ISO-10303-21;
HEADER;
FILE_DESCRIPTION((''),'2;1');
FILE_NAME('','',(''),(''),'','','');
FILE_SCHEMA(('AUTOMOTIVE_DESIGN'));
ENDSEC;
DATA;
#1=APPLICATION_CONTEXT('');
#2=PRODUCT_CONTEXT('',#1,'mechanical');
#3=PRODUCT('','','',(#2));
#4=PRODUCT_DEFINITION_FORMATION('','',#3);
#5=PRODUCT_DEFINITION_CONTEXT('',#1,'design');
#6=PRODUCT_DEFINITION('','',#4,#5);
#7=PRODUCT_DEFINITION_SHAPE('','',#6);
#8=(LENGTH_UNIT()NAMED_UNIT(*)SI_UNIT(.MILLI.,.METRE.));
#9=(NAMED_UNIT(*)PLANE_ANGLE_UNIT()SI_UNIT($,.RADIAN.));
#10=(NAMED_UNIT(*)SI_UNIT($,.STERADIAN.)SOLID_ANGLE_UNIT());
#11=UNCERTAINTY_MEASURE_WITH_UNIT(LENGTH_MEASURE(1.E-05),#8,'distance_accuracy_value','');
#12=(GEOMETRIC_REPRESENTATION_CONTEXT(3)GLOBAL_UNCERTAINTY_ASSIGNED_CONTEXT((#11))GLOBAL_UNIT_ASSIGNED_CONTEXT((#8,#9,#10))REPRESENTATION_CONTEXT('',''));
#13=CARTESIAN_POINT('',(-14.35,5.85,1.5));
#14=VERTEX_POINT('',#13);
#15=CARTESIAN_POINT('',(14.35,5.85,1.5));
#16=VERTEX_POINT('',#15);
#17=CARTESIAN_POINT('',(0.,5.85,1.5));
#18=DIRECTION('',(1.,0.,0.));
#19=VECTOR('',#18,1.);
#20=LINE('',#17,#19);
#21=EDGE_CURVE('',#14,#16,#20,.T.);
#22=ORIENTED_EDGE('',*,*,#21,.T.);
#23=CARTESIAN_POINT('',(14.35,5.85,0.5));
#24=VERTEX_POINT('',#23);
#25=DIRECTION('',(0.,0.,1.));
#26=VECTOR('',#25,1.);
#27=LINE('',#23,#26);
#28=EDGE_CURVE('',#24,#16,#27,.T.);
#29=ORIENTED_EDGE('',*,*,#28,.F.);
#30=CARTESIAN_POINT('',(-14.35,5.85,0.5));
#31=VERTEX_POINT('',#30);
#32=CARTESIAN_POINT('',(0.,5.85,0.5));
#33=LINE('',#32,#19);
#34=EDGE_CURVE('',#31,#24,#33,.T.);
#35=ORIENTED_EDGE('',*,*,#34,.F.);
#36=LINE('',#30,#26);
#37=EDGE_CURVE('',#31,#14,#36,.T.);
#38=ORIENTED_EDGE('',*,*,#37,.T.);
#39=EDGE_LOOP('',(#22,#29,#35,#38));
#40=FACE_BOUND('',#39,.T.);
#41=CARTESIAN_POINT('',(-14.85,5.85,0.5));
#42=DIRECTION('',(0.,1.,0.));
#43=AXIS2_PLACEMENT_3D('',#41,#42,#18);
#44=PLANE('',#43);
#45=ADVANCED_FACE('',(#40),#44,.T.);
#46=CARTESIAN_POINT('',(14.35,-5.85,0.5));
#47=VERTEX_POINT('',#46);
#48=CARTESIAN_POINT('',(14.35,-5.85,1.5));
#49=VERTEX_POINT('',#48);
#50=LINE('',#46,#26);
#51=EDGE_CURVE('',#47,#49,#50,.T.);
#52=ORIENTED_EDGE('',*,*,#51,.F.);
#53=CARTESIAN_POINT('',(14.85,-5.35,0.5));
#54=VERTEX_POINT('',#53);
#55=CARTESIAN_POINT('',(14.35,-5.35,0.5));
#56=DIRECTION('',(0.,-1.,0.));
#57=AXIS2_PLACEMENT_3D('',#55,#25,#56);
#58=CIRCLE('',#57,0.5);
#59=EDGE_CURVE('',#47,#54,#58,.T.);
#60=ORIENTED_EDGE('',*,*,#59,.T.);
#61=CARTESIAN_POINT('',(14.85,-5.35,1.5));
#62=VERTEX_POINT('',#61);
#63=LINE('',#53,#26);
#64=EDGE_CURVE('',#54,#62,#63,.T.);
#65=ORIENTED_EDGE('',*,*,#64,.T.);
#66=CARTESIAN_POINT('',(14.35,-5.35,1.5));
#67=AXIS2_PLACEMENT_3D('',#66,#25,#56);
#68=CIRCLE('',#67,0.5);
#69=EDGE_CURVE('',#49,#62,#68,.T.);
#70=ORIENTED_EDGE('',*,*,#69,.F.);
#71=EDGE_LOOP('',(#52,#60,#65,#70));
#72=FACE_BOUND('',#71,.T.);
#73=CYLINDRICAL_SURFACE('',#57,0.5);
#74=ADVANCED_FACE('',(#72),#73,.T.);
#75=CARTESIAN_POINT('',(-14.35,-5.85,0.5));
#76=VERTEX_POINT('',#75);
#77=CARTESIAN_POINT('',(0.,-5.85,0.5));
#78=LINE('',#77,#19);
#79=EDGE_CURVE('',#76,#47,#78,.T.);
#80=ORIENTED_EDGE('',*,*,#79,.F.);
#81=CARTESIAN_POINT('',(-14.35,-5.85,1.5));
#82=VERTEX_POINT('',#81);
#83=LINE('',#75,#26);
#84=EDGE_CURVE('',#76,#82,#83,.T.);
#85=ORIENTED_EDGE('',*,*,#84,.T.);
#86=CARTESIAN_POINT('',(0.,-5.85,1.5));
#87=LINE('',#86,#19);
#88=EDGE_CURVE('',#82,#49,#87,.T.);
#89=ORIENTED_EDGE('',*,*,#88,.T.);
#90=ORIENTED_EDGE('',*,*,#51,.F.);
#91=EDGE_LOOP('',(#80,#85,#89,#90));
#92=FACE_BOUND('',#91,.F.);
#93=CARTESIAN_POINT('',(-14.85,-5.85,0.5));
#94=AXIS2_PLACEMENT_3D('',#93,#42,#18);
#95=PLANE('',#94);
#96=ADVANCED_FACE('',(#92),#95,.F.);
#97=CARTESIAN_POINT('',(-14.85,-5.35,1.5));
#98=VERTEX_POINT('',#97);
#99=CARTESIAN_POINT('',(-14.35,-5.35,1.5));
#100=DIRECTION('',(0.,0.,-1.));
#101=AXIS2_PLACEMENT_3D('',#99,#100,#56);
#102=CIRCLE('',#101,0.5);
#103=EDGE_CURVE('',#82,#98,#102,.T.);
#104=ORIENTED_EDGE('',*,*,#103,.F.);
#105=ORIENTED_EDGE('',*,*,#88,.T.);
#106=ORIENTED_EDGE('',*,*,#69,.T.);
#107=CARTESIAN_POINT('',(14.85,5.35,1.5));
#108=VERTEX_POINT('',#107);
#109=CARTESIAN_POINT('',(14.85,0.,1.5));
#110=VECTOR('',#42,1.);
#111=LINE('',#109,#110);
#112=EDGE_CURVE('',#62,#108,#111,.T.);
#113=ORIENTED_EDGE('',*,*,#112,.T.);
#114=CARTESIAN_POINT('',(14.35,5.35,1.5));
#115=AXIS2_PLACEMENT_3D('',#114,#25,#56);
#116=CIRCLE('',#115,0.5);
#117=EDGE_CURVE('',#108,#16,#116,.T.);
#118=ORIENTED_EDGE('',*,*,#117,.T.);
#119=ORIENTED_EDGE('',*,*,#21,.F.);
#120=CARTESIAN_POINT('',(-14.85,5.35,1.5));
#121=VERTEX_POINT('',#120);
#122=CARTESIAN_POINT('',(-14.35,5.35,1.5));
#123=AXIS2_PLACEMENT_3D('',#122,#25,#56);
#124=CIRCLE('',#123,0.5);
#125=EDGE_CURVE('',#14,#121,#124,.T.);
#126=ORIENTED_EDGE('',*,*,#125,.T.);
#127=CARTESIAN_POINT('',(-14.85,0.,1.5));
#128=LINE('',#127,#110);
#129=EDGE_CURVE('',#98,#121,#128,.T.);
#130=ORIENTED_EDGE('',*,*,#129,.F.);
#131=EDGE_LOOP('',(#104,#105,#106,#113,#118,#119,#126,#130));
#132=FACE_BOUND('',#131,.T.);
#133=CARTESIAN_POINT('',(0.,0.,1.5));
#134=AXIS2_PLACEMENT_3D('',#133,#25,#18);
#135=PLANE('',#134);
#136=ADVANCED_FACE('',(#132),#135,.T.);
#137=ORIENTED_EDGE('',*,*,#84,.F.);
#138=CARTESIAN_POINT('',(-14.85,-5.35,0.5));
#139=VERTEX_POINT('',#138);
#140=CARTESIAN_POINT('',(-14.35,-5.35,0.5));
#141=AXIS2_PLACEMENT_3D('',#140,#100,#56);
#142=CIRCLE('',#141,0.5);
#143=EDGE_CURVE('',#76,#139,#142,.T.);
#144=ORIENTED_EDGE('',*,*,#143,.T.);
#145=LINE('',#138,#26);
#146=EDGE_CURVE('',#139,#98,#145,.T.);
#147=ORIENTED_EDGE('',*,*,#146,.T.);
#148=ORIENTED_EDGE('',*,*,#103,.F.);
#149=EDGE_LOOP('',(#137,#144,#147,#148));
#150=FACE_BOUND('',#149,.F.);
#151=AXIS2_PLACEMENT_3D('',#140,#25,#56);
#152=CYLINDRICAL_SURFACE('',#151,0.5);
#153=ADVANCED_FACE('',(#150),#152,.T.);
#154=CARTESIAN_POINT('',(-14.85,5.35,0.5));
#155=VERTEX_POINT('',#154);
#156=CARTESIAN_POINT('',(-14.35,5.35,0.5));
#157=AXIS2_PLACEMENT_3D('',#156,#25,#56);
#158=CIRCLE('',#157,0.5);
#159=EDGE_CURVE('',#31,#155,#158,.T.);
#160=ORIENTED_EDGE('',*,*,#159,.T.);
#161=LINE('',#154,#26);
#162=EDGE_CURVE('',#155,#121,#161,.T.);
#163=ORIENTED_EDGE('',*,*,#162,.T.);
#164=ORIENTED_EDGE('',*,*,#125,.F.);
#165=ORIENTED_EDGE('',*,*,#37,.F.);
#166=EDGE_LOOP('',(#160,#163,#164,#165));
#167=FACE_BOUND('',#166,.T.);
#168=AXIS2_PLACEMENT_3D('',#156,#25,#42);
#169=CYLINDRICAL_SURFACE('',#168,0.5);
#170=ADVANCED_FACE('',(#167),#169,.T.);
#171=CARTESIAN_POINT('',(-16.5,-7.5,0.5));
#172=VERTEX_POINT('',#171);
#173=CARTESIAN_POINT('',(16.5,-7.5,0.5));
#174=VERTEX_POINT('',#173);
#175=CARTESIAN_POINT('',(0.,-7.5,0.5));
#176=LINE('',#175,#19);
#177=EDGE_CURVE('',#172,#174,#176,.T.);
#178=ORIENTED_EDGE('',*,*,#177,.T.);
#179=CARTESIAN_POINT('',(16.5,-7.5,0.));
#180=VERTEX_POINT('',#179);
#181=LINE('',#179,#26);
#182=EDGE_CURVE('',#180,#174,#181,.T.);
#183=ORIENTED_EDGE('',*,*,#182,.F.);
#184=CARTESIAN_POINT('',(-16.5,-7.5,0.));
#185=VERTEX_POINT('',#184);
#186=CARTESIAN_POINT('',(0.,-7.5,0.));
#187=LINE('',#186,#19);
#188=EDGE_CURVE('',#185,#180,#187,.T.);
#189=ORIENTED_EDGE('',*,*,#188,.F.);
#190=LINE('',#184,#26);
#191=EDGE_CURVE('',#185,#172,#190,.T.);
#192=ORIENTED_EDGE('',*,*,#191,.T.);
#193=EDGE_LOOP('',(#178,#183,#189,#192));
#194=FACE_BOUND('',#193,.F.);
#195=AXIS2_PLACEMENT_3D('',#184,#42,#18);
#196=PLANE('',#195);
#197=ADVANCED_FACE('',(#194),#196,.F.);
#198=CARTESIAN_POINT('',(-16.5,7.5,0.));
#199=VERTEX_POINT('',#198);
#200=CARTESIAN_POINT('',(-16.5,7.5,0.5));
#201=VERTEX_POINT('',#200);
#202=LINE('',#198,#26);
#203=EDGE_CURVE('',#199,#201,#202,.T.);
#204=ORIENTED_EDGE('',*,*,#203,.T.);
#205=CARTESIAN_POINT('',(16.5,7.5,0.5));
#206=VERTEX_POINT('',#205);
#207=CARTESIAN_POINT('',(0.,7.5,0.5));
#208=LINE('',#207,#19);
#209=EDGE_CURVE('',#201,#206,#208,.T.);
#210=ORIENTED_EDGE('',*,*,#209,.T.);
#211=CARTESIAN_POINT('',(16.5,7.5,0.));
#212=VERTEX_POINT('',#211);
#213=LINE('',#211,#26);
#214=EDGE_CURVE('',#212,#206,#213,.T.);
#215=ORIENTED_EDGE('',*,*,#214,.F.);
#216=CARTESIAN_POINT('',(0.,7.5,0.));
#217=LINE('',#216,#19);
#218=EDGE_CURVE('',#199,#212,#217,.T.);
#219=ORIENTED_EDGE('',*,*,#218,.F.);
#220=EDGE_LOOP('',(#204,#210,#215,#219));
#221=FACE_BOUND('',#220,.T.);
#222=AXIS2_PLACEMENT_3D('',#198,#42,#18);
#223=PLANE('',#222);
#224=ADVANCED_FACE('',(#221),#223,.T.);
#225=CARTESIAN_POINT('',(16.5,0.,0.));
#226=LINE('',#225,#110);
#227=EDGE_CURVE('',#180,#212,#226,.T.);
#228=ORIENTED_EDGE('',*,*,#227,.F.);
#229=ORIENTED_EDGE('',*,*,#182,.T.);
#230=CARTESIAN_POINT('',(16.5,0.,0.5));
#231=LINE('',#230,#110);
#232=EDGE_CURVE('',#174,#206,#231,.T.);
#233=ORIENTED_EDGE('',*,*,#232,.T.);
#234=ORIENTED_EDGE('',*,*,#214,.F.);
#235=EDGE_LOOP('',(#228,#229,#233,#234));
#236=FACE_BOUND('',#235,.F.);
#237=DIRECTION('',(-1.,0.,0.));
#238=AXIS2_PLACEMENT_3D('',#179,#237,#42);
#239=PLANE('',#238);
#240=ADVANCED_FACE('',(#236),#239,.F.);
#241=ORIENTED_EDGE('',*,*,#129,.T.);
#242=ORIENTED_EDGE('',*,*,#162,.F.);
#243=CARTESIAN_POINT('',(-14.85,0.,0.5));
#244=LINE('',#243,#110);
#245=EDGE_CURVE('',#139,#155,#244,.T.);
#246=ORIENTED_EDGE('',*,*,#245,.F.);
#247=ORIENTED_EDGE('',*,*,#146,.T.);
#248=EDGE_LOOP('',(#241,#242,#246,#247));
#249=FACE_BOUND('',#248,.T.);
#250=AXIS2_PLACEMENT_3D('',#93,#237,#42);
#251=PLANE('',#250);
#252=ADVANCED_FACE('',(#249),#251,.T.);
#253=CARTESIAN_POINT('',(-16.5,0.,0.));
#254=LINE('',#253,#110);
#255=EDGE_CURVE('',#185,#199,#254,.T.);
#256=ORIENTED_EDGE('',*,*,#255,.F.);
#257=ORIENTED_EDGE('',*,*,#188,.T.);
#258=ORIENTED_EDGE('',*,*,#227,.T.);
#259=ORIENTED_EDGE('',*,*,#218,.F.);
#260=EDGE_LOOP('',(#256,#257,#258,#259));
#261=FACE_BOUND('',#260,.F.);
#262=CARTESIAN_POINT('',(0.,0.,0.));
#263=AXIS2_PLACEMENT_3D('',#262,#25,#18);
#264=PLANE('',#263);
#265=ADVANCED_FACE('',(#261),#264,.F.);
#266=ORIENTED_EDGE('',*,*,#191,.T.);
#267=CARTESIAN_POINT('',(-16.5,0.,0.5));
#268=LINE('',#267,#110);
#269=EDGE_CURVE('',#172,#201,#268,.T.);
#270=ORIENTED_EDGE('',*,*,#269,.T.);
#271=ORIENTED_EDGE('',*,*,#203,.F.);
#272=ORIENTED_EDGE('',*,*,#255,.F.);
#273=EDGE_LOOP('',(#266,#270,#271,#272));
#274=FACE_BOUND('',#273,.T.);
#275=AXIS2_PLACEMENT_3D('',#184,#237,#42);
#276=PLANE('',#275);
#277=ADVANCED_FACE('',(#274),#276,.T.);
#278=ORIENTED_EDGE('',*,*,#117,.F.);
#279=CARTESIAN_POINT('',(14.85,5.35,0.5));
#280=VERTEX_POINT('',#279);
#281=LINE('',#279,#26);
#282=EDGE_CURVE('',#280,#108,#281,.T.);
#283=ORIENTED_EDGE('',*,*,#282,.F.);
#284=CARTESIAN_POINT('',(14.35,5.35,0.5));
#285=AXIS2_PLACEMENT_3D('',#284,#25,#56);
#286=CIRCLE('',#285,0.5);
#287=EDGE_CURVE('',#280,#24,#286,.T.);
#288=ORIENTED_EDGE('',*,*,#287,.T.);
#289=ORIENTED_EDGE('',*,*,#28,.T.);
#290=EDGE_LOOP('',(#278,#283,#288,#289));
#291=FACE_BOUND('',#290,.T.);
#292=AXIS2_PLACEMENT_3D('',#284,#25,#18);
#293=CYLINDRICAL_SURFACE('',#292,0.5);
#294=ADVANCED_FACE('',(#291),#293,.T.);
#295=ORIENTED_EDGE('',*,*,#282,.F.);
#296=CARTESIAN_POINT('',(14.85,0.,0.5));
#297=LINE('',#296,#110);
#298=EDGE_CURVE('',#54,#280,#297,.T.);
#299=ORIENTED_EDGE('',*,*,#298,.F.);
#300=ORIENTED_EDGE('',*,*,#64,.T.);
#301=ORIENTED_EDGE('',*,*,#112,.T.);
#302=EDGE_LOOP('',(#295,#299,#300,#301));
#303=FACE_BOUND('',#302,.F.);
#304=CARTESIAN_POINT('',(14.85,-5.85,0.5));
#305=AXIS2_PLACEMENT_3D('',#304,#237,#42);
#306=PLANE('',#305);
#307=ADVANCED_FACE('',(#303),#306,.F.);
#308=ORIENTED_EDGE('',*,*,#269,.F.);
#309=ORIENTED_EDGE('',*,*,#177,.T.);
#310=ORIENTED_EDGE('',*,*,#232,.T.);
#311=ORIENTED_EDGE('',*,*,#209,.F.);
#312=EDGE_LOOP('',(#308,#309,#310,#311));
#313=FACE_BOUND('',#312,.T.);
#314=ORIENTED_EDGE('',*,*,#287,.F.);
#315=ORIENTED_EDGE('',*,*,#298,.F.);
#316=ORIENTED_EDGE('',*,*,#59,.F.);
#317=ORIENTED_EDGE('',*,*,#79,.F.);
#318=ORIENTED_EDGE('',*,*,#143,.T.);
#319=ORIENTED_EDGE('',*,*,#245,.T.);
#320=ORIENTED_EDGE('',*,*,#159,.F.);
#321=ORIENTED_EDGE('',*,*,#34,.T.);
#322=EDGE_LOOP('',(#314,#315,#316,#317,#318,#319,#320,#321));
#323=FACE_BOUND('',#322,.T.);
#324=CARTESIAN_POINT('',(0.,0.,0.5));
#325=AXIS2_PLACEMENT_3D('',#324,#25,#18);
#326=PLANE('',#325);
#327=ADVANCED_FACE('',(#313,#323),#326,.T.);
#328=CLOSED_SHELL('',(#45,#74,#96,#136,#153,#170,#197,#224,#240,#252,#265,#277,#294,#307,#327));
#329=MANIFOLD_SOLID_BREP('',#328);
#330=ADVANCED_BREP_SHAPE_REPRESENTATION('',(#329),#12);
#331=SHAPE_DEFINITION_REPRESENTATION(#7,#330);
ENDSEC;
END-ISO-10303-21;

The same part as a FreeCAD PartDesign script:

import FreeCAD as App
import Part
import Sketcher
from FreeCAD import Vector


def edges_at(feature, points):
    """Names of the edges that pass closest to the given points."""
    edges = feature.Shape.Edges
    near = lambda p: min(range(len(edges)), key=lambda i: edges[i].distToShape(Part.Vertex(*p))[0])
    return sorted({f"Edge{near(p) + 1}" for p in points})

doc = App.newDocument("Part")
body = doc.addObject("PartDesign::Body", "Body")

sketch1 = body.newObject("Sketcher::SketchObject", "Sketch")
sketch1.AttachmentSupport = (doc.getObject("XY_Plane"), [""])
sketch1.MapMode = "FlatFace"
sketch1.addGeometry(Part.LineSegment(Vector(-16.5, 7.5, 0), Vector(-16.5, -7.5, 0)), False)
sketch1.addGeometry(Part.LineSegment(Vector(-16.5, -7.5, 0), Vector(16.5, -7.5, 0)), False)
sketch1.addGeometry(Part.LineSegment(Vector(16.5, -7.5, 0), Vector(16.5, 7.5, 0)), False)
sketch1.addGeometry(Part.LineSegment(Vector(16.5, 7.5, 0), Vector(-16.5, 7.5, 0)), False)
sketch1.addConstraint(Sketcher.Constraint("Coincident", 0, 2, 1, 1))
sketch1.addConstraint(Sketcher.Constraint("Coincident", 1, 2, 2, 1))
sketch1.addConstraint(Sketcher.Constraint("Coincident", 2, 2, 3, 1))
sketch1.addConstraint(Sketcher.Constraint("Coincident", 3, 2, 0, 1))
sketch1.addConstraint(Sketcher.Constraint("Vertical", 0))
sketch1.addConstraint(Sketcher.Constraint("Horizontal", 1))
sketch1.addConstraint(Sketcher.Constraint("Vertical", 2))
sketch1.addConstraint(Sketcher.Constraint("Horizontal", 3))
sketch1.addConstraint(Sketcher.Constraint("Symmetric", 0, 2, 2, 2, -1, 1))
sketch1.addConstraint(Sketcher.Constraint("DistanceX", 1, 1, 1, 2, 33.0))
sketch1.addConstraint(Sketcher.Constraint("DistanceY", 0, 2, 0, 1, 15.0))
pad1 = body.newObject("PartDesign::Pad", "Pad")
pad1.Profile = sketch1
pad1.Length = 0.5

sketch2 = body.newObject("Sketcher::SketchObject", "Sketch001")
sketch2.AttachmentSupport = (doc.getObject("XY_Plane"), [""])
sketch2.MapMode = "FlatFace"
sketch2.AttachmentOffset = App.Placement(Vector(0, 0, 0.5), App.Rotation())
sketch2.addGeometry(Part.LineSegment(Vector(-14.85, 5.85, 0), Vector(-14.85, -5.85, 0)), False)
sketch2.addGeometry(Part.LineSegment(Vector(-14.85, -5.85, 0), Vector(14.85, -5.85, 0)), False)
sketch2.addGeometry(Part.LineSegment(Vector(14.85, -5.85, 0), Vector(14.85, 5.85, 0)), False)
sketch2.addGeometry(Part.LineSegment(Vector(14.85, 5.85, 0), Vector(-14.85, 5.85, 0)), False)
sketch2.addConstraint(Sketcher.Constraint("Coincident", 0, 2, 1, 1))
sketch2.addConstraint(Sketcher.Constraint("Coincident", 1, 2, 2, 1))
sketch2.addConstraint(Sketcher.Constraint("Coincident", 2, 2, 3, 1))
sketch2.addConstraint(Sketcher.Constraint("Coincident", 3, 2, 0, 1))
sketch2.addConstraint(Sketcher.Constraint("Vertical", 0))
sketch2.addConstraint(Sketcher.Constraint("Horizontal", 1))
sketch2.addConstraint(Sketcher.Constraint("Vertical", 2))
sketch2.addConstraint(Sketcher.Constraint("Horizontal", 3))
sketch2.addConstraint(Sketcher.Constraint("Symmetric", 0, 2, 2, 2, -1, 1))
sketch2.addConstraint(Sketcher.Constraint("DistanceX", 1, 1, 1, 2, 29.7))
sketch2.addConstraint(Sketcher.Constraint("DistanceY", 0, 2, 0, 1, 11.7))
pad2 = body.newObject("PartDesign::Pad", "Pad001")
pad2.Profile = sketch2
pad2.Length = 1
doc.recompute()

fillet = body.newObject("PartDesign::Fillet", "Fillet")
fillet.Base = (pad2, edges_at(pad2, [
    (-14.85, -5.85, 1),
    (14.85, -5.85, 1),
    (14.85, 5.85, 1),
    (-14.85, 5.85, 1),
]))
fillet.Radius = 0.5

doc.recompute()
